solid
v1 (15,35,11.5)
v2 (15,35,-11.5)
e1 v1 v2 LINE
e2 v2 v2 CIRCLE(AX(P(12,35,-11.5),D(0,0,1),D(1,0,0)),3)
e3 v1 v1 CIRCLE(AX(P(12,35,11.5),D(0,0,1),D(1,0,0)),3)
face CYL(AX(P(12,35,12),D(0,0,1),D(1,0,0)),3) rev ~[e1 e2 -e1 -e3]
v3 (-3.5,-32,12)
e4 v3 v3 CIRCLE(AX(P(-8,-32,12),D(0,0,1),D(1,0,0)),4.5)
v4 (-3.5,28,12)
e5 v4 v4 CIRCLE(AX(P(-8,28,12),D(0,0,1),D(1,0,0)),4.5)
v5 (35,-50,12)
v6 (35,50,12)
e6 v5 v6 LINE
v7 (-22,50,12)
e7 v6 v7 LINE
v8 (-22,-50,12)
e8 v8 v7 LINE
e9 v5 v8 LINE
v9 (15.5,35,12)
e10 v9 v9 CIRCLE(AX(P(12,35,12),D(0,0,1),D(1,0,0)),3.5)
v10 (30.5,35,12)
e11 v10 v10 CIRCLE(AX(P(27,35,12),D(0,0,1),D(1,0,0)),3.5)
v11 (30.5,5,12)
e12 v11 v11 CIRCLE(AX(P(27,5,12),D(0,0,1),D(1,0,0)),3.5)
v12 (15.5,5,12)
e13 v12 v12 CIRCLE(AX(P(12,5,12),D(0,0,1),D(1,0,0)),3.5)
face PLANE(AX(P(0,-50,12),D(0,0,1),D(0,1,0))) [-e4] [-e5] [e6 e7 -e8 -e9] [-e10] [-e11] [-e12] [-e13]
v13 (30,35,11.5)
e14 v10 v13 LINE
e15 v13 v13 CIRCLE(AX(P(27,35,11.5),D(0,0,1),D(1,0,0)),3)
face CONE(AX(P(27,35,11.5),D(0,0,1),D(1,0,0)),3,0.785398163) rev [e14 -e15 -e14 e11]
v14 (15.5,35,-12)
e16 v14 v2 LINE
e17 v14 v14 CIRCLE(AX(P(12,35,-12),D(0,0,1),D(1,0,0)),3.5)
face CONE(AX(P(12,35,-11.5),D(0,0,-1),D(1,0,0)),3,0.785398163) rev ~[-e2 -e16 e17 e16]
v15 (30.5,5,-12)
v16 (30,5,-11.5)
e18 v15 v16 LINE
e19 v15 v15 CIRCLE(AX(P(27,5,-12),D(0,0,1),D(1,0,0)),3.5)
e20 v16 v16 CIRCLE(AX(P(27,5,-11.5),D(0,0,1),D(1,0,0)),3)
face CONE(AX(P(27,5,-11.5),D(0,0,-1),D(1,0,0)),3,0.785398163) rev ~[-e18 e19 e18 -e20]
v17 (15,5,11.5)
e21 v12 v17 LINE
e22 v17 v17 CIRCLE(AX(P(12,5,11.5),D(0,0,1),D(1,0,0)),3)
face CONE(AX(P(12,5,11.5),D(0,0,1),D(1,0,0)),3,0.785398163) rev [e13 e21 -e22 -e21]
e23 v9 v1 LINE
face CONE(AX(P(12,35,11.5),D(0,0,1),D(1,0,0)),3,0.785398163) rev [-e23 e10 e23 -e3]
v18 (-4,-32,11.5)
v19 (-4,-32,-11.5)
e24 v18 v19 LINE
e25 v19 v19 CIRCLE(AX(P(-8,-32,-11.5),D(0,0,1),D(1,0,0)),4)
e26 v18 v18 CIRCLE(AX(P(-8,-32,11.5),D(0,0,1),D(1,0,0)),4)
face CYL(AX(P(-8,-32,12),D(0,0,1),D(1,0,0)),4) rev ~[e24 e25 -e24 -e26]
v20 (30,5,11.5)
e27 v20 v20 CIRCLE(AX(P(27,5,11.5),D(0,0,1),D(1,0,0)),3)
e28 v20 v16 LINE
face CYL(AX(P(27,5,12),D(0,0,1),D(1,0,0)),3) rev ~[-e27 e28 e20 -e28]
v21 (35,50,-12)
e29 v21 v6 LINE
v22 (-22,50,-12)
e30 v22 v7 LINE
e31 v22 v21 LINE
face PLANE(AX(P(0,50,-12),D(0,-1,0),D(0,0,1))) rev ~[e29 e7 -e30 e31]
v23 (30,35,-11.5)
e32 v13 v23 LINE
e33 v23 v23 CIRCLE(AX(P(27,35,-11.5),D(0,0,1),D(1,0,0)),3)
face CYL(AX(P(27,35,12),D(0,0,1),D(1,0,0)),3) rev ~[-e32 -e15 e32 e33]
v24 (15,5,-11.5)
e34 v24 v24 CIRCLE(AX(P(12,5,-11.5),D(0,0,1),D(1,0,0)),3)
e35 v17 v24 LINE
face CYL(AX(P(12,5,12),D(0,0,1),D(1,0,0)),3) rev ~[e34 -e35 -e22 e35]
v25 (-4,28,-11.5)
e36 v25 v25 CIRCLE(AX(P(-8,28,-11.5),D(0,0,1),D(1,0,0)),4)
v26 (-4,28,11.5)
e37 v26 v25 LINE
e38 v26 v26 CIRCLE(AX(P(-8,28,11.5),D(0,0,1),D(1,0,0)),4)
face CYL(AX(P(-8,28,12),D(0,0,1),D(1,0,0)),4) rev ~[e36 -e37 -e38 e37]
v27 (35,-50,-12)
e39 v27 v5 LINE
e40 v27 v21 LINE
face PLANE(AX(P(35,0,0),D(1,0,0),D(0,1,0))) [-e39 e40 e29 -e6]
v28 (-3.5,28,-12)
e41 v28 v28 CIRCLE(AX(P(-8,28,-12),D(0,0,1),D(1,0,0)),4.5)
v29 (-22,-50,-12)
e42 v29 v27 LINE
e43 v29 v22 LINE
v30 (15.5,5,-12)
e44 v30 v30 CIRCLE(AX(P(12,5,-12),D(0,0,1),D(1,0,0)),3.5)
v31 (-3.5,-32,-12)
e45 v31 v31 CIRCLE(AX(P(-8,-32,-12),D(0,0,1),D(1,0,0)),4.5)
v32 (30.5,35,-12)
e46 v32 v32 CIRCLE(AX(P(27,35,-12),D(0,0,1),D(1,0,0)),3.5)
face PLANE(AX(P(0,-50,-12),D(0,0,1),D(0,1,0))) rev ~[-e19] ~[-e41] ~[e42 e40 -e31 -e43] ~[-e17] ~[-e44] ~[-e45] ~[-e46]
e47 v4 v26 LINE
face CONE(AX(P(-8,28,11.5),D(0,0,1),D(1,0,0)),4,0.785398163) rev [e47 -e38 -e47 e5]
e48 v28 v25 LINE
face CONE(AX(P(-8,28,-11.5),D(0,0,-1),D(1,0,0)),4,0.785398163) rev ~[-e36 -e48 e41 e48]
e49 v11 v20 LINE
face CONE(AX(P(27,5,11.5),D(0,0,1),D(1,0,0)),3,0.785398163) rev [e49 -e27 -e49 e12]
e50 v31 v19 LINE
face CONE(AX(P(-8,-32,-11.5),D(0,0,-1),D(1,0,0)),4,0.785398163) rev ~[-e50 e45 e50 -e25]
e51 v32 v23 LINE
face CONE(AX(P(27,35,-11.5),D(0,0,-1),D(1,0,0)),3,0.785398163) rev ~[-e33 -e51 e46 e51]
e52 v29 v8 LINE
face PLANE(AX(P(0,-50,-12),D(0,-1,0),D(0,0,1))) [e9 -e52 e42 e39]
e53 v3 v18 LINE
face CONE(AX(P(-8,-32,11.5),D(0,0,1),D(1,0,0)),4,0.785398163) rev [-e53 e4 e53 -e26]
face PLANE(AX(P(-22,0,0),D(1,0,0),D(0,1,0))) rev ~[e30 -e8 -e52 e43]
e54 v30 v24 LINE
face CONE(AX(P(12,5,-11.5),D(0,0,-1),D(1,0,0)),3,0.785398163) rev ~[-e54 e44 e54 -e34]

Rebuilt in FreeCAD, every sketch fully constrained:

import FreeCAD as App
import Part
import Sketcher
from FreeCAD import Vector
Q = App.Units.Quantity


def edges_at(feature, points):
    """Names of the edges that pass closest to the given points."""
    edges = feature.Shape.Edges
    near = lambda p: min(range(len(edges)), key=lambda i: edges[i].distToShape(Part.Vertex(*p))[0])
    return sorted({f"Edge{near(p) + 1}" for p in points})

doc = App.newDocument("Part")
params = doc.addObject("Spreadsheet::Sheet", "Params")
for row, (alias, value) in enumerate([
    ("sketch1_width", "100 mm"),
    ("sketch1_height", "24 mm"),
    ("pad1_length", "22 mm"),
    ("sketch2_diameter", "8 mm"),
    ("chamfer_size", "0.5 mm"),
    ("sketch3_width", "100 mm"),
    ("sketch3_height", "24 mm"),
    ("pad2_length", "35 mm"),
    ("sketch4_diameter", "6 mm"),
    ("chamfer2_size", "0.5 mm"),
], start=1):
    params.set(f"A{row}", alias)
    params.set(f"B{row}", "=" + value)
    params.setAlias(f"B{row}", alias)

body = doc.addObject("PartDesign::Body", "Body")

sketch1 = doc.addObject("Sketcher::SketchObject", "Sketch")
body.addObject(sketch1)
sketch1.AttachmentSupport = (doc.YZ_Plane, [""])
sketch1.MapMode = "FlatFace"
sketch1.addGeometry(Part.LineSegment(Vector(-50, 12, 0), Vector(-50, -12, 0)), False)
sketch1.addGeometry(Part.LineSegment(Vector(-50, -12, 0), Vector(50, -12, 0)), False)
sketch1.addGeometry(Part.LineSegment(Vector(50, -12, 0), Vector(50, 12, 0)), False)
sketch1.addGeometry(Part.LineSegment(Vector(50, 12, 0), Vector(-50, 12, 0)), False)
sketch1.addConstraint(Sketcher.Constraint("Coincident", 0, 2, 1, 1))
sketch1.addConstraint(Sketcher.Constraint("Coincident", 1, 2, 2, 1))
sketch1.addConstraint(Sketcher.Constraint("Coincident", 2, 2, 3, 1))
sketch1.addConstraint(Sketcher.Constraint("Coincident", 3, 2, 0, 1))
sketch1.addConstraint(Sketcher.Constraint("Vertical", 0))
sketch1.addConstraint(Sketcher.Constraint("Horizontal", 1))
sketch1.addConstraint(Sketcher.Constraint("Vertical", 2))
sketch1.addConstraint(Sketcher.Constraint("Horizontal", 3))
sketch1.addConstraint(Sketcher.Constraint("Symmetric", 0, 2, 2, 2, -1, 1))
sketch1.addConstraint(Sketcher.Constraint("DistanceX", 1, 1, 1, 2, Q("100 mm")))
sketch1.addConstraint(Sketcher.Constraint("DistanceY", 0, 2, 0, 1, Q("24 mm")))
sketch1.setExpression("Constraints[9]", "Params.sketch1_width")
sketch1.setExpression("Constraints[10]", "Params.sketch1_height")
pad1 = doc.addObject("PartDesign::Pad", "Pad")
body.addObject(pad1)
pad1.Profile = sketch1
pad1.setExpression("Length", "Params.pad1_length")
pad1.Reversed = True

sketch2 = doc.addObject("Sketcher::SketchObject", "Sketch001")
body.addObject(sketch2)
sketch2.AttachmentSupport = (doc.XY_Plane, [""])
sketch2.MapMode = "FlatFace"
sketch2.AttachmentOffset = App.Placement(Vector(0, 0, 12), App.Rotation())
sketch2.addGeometry(Part.Circle(Vector(-8, 28, 0), Vector(0, 0, 1), 4), False)
sketch2.addGeometry(Part.Circle(Vector(-8, -32, 0), Vector(0, 0, 1), 4), False)
sketch2.addConstraint(Sketcher.Constraint("Equal", 0, 1))
sketch2.addConstraint(Sketcher.Constraint("Vertical", 0, 3, 1, 3))
sketch2.addConstraint(Sketcher.Constraint("Diameter", 0, Q("8 mm")))
sketch2.addConstraint(Sketcher.Constraint("DistanceX", 0, 3, -1, 1, Q("8 mm")))
sketch2.addConstraint(Sketcher.Constraint("DistanceY", -1, 1, 0, 3, Q("28 mm")))
sketch2.addConstraint(Sketcher.Constraint("DistanceY", 1, 3, -1, 1, Q("32 mm")))
sketch2.setExpression("Constraints[2]", "Params.sketch2_diameter")
pocket1 = doc.addObject("PartDesign::Pocket", "Pocket")
body.addObject(pocket1)
pocket1.Profile = sketch2
pocket1.Type = "ThroughAll"
doc.recompute()

chamfer = doc.addObject("PartDesign::Chamfer", "Chamfer")
body.addObject(chamfer)
chamfer.Base = (pocket1, edges_at(pocket1, [
    (-12, 28, 12),
    (-4, 28, 0),
    (-12, 28, -12),
    (-12, -32, 12),
    (-4, -32, 0),
    (-12, -32, -12),
]))
chamfer.setExpression("Size", "Params.chamfer_size")

sketch3 = doc.addObject("Sketcher::SketchObject", "Sketch002")
body.addObject(sketch3)
sketch3.AttachmentSupport = (doc.YZ_Plane, [""])
sketch3.MapMode = "FlatFace"
sketch3.addGeometry(Part.LineSegment(Vector(-50, 12, 0), Vector(-50, -12, 0)), False)
sketch3.addGeometry(Part.LineSegment(Vector(-50, -12, 0), Vector(50, -12, 0)), False)
sketch3.addGeometry(Part.LineSegment(Vector(50, -12, 0), Vector(50, 12, 0)), False)
sketch3.addGeometry(Part.LineSegment(Vector(50, 12, 0), Vector(-50, 12, 0)), False)
sketch3.addConstraint(Sketcher.Constraint("Coincident", 0, 2, 1, 1))
sketch3.addConstraint(Sketcher.Constraint("Coincident", 1, 2, 2, 1))
sketch3.addConstraint(Sketcher.Constraint("Coincident", 2, 2, 3, 1))
sketch3.addConstraint(Sketcher.Constraint("Coincident", 3, 2, 0, 1))
sketch3.addConstraint(Sketcher.Constraint("Vertical", 0))
sketch3.addConstraint(Sketcher.Constraint("Horizontal", 1))
sketch3.addConstraint(Sketcher.Constraint("Vertical", 2))
sketch3.addConstraint(Sketcher.Constraint("Horizontal", 3))
sketch3.addConstraint(Sketcher.Constraint("Symmetric", 0, 2, 2, 2, -1, 1))
sketch3.addConstraint(Sketcher.Constraint("DistanceX", 1, 1, 1, 2, Q("100 mm")))
sketch3.addConstraint(Sketcher.Constraint("DistanceY", 0, 2, 0, 1, Q("24 mm")))
sketch3.setExpression("Constraints[9]", "Params.sketch3_width")
sketch3.setExpression("Constraints[10]", "Params.sketch3_height")
pad2 = doc.addObject("PartDesign::Pad", "Pad001")
body.addObject(pad2)
pad2.Profile = sketch3
pad2.setExpression("Length", "Params.pad2_length")

sketch4 = doc.addObject("Sketcher::SketchObject", "Sketch003")
body.addObject(sketch4)
sketch4.AttachmentSupport = (doc.XY_Plane, [""])
sketch4.MapMode = "FlatFace"
sketch4.AttachmentOffset = App.Placement(Vector(0, 0, 12), App.Rotation())
sketch4.addGeometry(Part.Circle(Vector(27, 5, 0), Vector(0, 0, 1), 3), False)
sketch4.addGeometry(Part.Circle(Vector(27, 35, 0), Vector(0, 0, 1), 3), False)
sketch4.addGeometry(Part.Circle(Vector(12, 35, 0), Vector(0, 0, 1), 3), False)
sketch4.addGeometry(Part.Circle(Vector(12, 5, 0), Vector(0, 0, 1), 3), False)
sketch4.addConstraint(Sketcher.Constraint("Equal", 0, 1))
sketch4.addConstraint(Sketcher.Constraint("Equal", 1, 2))
sketch4.addConstraint(Sketcher.Constraint("Equal", 2, 3))
sketch4.addConstraint(Sketcher.Constraint("Horizontal", 1, 3, 2, 3))
sketch4.addConstraint(Sketcher.Constraint("Horizontal", 0, 3, 3, 3))
sketch4.addConstraint(Sketcher.Constraint("Vertical", 0, 3, 1, 3))
sketch4.addConstraint(Sketcher.Constraint("Vertical", 2, 3, 3, 3))
sketch4.addConstraint(Sketcher.Constraint("Diameter", 0, Q("6 mm")))
sketch4.addConstraint(Sketcher.Constraint("DistanceX", -1, 1, 0, 3, Q("27 mm")))
sketch4.addConstraint(Sketcher.Constraint("DistanceY", -1, 1, 0, 3, Q("5 mm")))
sketch4.addConstraint(Sketcher.Constraint("DistanceY", -1, 1, 1, 3, Q("35 mm")))
sketch4.addConstraint(Sketcher.Constraint("DistanceX", -1, 1, 2, 3, Q("12 mm")))
sketch4.setExpression("Constraints[7]", "Params.sketch4_diameter")
pocket2 = doc.addObject("PartDesign::Pocket", "Pocket001")
body.addObject(pocket2)
pocket2.Profile = sketch4
pocket2.Type = "ThroughAll"
doc.recompute()

chamfer2 = doc.addObject("PartDesign::Chamfer", "Chamfer001")
body.addObject(chamfer2)
chamfer2.Base = (pocket2, edges_at(pocket2, [
    (24, 5, 12),
    (30, 5, 0),
    (24, 5, -12),
    (24, 35, 12),
    (30, 35, 0),
    (24, 35, -12),
    (9, 35, 12),
    (15, 35, 0),
    (9, 35, -12),
    (9, 5, 12),
    (15, 5, 0),
    (9, 5, -12),
]))
chamfer2.setExpression("Size", "Params.chamfer2_size")

doc.recompute()
